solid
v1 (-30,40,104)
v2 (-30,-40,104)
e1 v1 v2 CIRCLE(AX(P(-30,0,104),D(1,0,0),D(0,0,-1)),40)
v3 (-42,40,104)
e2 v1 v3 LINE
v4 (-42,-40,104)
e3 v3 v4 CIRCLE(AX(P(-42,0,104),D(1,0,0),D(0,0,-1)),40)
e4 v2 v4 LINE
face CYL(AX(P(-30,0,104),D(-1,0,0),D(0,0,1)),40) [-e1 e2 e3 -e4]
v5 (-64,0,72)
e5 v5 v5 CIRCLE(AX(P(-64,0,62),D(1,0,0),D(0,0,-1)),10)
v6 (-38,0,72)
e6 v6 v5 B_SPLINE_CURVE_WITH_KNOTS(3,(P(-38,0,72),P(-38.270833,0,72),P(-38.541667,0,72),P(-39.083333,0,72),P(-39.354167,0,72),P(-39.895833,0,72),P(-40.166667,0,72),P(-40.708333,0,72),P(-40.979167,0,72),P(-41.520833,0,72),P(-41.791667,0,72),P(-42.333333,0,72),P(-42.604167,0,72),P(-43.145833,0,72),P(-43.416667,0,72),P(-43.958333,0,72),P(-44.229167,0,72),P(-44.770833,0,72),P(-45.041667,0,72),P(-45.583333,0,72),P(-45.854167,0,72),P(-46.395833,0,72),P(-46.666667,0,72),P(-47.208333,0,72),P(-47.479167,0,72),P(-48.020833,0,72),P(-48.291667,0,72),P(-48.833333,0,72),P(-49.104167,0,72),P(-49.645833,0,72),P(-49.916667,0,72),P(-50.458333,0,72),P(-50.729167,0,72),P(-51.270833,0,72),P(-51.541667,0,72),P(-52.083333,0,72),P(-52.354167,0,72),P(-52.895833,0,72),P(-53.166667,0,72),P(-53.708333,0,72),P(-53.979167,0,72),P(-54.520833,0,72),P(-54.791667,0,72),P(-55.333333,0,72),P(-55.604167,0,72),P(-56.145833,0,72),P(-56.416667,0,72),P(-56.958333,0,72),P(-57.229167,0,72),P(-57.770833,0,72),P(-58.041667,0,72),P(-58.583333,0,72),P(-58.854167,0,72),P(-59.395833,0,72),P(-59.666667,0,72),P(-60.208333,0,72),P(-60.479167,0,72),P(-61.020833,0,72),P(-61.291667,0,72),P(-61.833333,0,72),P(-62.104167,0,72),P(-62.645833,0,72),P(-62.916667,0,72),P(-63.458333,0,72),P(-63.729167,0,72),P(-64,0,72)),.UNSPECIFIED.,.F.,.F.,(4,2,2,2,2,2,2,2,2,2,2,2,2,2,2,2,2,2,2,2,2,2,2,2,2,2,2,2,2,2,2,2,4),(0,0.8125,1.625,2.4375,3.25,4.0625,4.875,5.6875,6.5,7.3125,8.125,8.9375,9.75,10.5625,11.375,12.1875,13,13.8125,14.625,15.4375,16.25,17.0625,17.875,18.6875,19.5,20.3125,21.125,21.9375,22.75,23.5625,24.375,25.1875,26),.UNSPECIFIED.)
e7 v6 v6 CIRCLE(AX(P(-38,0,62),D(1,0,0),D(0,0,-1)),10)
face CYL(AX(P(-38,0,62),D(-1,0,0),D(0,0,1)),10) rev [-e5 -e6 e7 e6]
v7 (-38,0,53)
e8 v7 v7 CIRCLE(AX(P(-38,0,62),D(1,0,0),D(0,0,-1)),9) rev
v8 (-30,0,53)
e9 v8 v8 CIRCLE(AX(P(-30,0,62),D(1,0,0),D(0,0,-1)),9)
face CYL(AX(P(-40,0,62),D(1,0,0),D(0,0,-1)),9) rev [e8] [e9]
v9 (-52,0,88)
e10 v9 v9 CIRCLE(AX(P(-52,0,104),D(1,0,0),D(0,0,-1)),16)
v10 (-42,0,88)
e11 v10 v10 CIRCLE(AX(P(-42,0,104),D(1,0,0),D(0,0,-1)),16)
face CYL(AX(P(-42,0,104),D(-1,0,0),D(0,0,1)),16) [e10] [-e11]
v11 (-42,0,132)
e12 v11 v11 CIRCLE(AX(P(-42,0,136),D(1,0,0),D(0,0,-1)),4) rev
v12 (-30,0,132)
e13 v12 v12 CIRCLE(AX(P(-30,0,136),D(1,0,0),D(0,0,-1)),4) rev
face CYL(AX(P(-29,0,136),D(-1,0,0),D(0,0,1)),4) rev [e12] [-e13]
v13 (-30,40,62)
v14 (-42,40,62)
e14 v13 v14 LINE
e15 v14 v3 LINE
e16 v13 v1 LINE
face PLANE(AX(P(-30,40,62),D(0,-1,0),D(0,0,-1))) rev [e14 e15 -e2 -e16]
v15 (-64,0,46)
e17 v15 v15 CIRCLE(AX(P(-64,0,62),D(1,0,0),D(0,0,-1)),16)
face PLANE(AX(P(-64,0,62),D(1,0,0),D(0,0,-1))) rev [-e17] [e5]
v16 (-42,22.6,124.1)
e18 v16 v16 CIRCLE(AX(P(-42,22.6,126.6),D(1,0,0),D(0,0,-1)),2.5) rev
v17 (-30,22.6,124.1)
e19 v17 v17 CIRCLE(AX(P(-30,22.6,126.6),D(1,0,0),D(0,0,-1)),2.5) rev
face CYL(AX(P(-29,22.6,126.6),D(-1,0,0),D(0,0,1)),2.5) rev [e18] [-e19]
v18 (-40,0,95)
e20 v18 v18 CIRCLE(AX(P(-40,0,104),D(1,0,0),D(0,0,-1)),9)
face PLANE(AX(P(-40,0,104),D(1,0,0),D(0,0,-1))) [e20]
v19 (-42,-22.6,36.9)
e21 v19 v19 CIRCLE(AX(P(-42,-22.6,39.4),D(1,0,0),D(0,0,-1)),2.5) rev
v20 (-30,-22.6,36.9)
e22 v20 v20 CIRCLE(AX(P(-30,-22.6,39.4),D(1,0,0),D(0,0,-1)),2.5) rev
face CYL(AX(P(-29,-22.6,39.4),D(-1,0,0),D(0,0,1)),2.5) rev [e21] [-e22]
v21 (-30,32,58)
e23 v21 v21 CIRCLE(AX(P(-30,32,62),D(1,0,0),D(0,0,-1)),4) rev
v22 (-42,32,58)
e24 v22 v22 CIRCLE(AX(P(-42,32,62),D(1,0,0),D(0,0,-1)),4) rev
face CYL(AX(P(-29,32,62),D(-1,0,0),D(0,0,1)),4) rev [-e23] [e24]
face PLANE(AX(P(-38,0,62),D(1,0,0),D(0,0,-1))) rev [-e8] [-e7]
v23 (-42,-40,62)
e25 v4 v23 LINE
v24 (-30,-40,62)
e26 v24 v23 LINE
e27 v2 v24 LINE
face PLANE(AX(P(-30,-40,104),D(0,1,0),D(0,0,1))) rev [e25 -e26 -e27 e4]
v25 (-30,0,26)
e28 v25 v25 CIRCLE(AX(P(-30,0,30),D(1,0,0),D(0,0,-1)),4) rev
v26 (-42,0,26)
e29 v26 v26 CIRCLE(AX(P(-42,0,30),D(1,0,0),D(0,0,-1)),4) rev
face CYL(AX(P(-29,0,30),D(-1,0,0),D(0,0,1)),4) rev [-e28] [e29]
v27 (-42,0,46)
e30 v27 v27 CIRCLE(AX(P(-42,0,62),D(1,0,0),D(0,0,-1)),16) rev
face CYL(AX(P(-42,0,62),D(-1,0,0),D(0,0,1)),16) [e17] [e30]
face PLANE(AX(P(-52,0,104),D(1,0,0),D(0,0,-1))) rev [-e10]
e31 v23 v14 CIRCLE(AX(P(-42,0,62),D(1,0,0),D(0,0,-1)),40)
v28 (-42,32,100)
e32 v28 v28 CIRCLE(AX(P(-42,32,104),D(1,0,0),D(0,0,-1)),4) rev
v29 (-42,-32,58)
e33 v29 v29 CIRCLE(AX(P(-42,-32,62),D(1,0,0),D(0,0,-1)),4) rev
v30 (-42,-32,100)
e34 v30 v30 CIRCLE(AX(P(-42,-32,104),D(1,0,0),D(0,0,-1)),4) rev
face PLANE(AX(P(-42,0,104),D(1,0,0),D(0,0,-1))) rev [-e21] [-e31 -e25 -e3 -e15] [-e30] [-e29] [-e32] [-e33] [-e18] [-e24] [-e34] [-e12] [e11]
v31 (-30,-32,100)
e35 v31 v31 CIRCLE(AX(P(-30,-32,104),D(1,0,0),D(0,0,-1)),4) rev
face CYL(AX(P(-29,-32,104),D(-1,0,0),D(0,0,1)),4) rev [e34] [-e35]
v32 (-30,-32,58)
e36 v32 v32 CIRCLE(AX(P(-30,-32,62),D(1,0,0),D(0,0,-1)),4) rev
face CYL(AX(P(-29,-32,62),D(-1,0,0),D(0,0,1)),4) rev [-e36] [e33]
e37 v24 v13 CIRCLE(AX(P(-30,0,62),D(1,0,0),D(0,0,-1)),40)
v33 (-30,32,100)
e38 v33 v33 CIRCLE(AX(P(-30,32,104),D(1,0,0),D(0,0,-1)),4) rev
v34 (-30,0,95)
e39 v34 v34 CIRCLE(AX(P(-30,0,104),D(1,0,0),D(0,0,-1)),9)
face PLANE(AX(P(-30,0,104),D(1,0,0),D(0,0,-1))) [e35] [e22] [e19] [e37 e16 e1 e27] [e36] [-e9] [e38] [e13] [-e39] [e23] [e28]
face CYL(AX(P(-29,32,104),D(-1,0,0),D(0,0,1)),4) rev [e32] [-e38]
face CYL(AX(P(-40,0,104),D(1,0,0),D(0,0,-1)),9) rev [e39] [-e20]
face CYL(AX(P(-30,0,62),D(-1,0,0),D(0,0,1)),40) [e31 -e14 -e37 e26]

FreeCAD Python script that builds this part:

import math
import FreeCAD as App
import Part
import Sketcher
from FreeCAD import Vector
Q = App.Units.Quantity

doc = App.newDocument("Part")
body = doc.addObject("PartDesign::Body", "Body")

# Sketch on YZ plane
sketch1 = body.newObject("Sketcher::SketchObject", "Sketch")
sketch1.AttachmentSupport = (doc.getObject("YZ_Plane"), [""])
sketch1.MapMode = "FlatFace"
sketch1.AttachmentOffset = App.Placement(Vector(0, 0, -42), App.Rotation())
sketch1.addGeometry(Part.LineSegment(Vector(-40, 104, 0), Vector(-40, 62, 0)), False)
sketch1.addGeometry(Part.ArcOfCircle(Part.Circle(Vector(0, 62, 0), Vector(0, 0, 1), 40), math.radians(180), math.radians(360)), False)
sketch1.addGeometry(Part.LineSegment(Vector(40, 62, 0), Vector(40, 104, 0)), False)
sketch1.addGeometry(Part.ArcOfCircle(Part.Circle(Vector(0, 104, 0), Vector(0, 0, 1), 40), math.radians(0), math.radians(180)), False)
sketch1.addConstraint(Sketcher.Constraint("Tangent", 0, 2, 1, 1))
sketch1.addConstraint(Sketcher.Constraint("Tangent", 1, 2, 2, 1))
sketch1.addConstraint(Sketcher.Constraint("Tangent", 2, 2, 3, 1))
sketch1.addConstraint(Sketcher.Constraint("Tangent", 3, 2, 0, 1))
sketch1.addConstraint(Sketcher.Constraint("Vertical", 0))
sketch1.addConstraint(Sketcher.Constraint("Vertical", 2))
sketch1.addConstraint(Sketcher.Constraint("PointOnObject", 1, 3, -2))
sketch1.addConstraint(Sketcher.Constraint("Radius", 1, Q("40 mm")))
sketch1.addConstraint(Sketcher.Constraint("DistanceY", 0, 2, 0, 1, Q("42 mm")))
sketch1.addConstraint(Sketcher.Constraint("DistanceY", -1, 1, 1, 3, Q("62 mm")))
pad1 = body.newObject("PartDesign::Pad", "Pad")
pad1.Profile = sketch1
pad1.Length = 12

# Sketch on YZ plane
sketch2 = body.newObject("Sketcher::SketchObject", "Sketch001")
sketch2.AttachmentSupport = (doc.getObject("YZ_Plane"), [""])
sketch2.MapMode = "FlatFace"
sketch2.AttachmentOffset = App.Placement(Vector(0, 0, -52), App.Rotation())
sketch2.addGeometry(Part.Circle(Vector(0, 104, 0), Vector(0, 0, 1), 16), False)
sketch2.addConstraint(Sketcher.Constraint("PointOnObject", 0, 3, -2))
sketch2.addConstraint(Sketcher.Constraint("Diameter", 0, Q("32 mm")))
sketch2.addConstraint(Sketcher.Constraint("DistanceY", -1, 1, 0, 3, Q("104 mm")))
pad2 = body.newObject("PartDesign::Pad", "Pad001")
pad2.Profile = sketch2
pad2.Length = 10

# Sketch on YZ plane
sketch3 = body.newObject("Sketcher::SketchObject", "Sketch002")
sketch3.AttachmentSupport = (doc.getObject("YZ_Plane"), [""])
sketch3.MapMode = "FlatFace"
sketch3.AttachmentOffset = App.Placement(Vector(0, 0, -64), App.Rotation())
sketch3.addGeometry(Part.Circle(Vector(0, 62, 0), Vector(0, 0, 1), 16), False)
sketch3.addConstraint(Sketcher.Constraint("PointOnObject", 0, 3, -2))
sketch3.addConstraint(Sketcher.Constraint("Diameter", 0, Q("32 mm")))
sketch3.addConstraint(Sketcher.Constraint("DistanceY", -1, 1, 0, 3, Q("62 mm")))
pad3 = body.newObject("PartDesign::Pad", "Pad002")
pad3.Profile = sketch3
pad3.Length = 22

# Sketch on YZ plane
sketch4 = body.newObject("Sketcher::SketchObject", "Sketch003")
sketch4.AttachmentSupport = (doc.getObject("YZ_Plane"), [""])
sketch4.MapMode = "FlatFace"
sketch4.AttachmentOffset = App.Placement(Vector(0, 0, -30), App.Rotation())
sketch4.addGeometry(Part.Circle(Vector(0, 104, 0), Vector(0, 0, 1), 9), False)
sketch4.addConstraint(Sketcher.Constraint("PointOnObject", 0, 3, -2))
sketch4.addConstraint(Sketcher.Constraint("Diameter", 0, Q("18 mm")))
sketch4.addConstraint(Sketcher.Constraint("DistanceY", -1, 1, 0, 3, Q("104 mm")))
pocket1 = body.newObject("PartDesign::Pocket", "Pocket")
pocket1.Profile = sketch4
pocket1.Length = 10

# Sketch on YZ plane
sketch5 = body.newObject("Sketcher::SketchObject", "Sketch004")
sketch5.AttachmentSupport = (doc.getObject("YZ_Plane"), [""])
sketch5.MapMode = "FlatFace"
sketch5.AttachmentOffset = App.Placement(Vector(0, 0, -30), App.Rotation())
sketch5.addGeometry(Part.Circle(Vector(0, 62, 0), Vector(0, 0, 1), 9), False)
sketch5.addConstraint(Sketcher.Constraint("PointOnObject", 0, 3, -2))
sketch5.addConstraint(Sketcher.Constraint("Diameter", 0, Q("18 mm")))
sketch5.addConstraint(Sketcher.Constraint("DistanceY", -1, 1, 0, 3, Q("62 mm")))
pocket2 = body.newObject("PartDesign::Pocket", "Pocket001")
pocket2.Profile = sketch5
pocket2.Length = 10

# Sketch on YZ plane
sketch6 = body.newObject("Sketcher::SketchObject", "Sketch005")
sketch6.AttachmentSupport = (doc.getObject("YZ_Plane"), [""])
sketch6.MapMode = "FlatFace"
sketch6.AttachmentOffset = App.Placement(Vector(0, 0, -64), App.Rotation())
sketch6.addGeometry(Part.Circle(Vector(0, 62, 0), Vector(0, 0, 1), 10), False)
sketch6.addConstraint(Sketcher.Constraint("PointOnObject", 0, 3, -2))
sketch6.addConstraint(Sketcher.Constraint("Diameter", 0, Q("20 mm")))
sketch6.addConstraint(Sketcher.Constraint("DistanceY", -1, 1, 0, 3, Q("62 mm")))
pocket3 = body.newObject("PartDesign::Pocket", "Pocket002")
pocket3.Profile = sketch6
pocket3.Length = 26
pocket3.Reversed = True

# Sketch on YZ plane
sketch7 = body.newObject("Sketcher::SketchObject", "Sketch006")
sketch7.AttachmentSupport = (doc.getObject("YZ_Plane"), [""])
sketch7.MapMode = "FlatFace"
sketch7.AttachmentOffset = App.Placement(Vector(0, 0, -43), App.Rotation())
sketch7.addGeometry(Part.Circle(Vector(32, 104, 0), Vector(0, 0, 1), 4), False)
sketch7.addConstraint(Sketcher.Constraint("Diameter", 0, Q("8 mm")))
sketch7.addConstraint(Sketcher.Constraint("DistanceX", -1, 1, 0, 3, Q("32 mm")))
sketch7.addConstraint(Sketcher.Constraint("DistanceY", -1, 1, 0, 3, Q("104 mm")))
pocket4 = body.newObject("PartDesign::Pocket", "Pocket003")
pocket4.Profile = sketch7
pocket4.Length = 14
pocket4.Reversed = True

# Sketch on YZ plane
sketch8 = body.newObject("Sketcher::SketchObject", "Sketch007")
sketch8.AttachmentSupport = (doc.getObject("YZ_Plane"), [""])
sketch8.MapMode = "FlatFace"
sketch8.AttachmentOffset = App.Placement(Vector(0, 0, -43), App.Rotation())
sketch8.addGeometry(Part.Circle(Vector(-32, 104, 0), Vector(0, 0, 1), 4), False)
sketch8.addConstraint(Sketcher.Constraint("Diameter", 0, Q("8 mm")))
sketch8.addConstraint(Sketcher.Constraint("DistanceX", 0, 3, -1, 1, Q("32 mm")))
sketch8.addConstraint(Sketcher.Constraint("DistanceY", -1, 1, 0, 3, Q("104 mm")))
pocket5 = body.newObject("PartDesign::Pocket", "Pocket004")
pocket5.Profile = sketch8
pocket5.Length = 14
pocket5.Reversed = True

# Sketch on YZ plane
sketch9 = body.newObject("Sketcher::SketchObject", "Sketch008")
sketch9.AttachmentSupport = (doc.getObject("YZ_Plane"), [""])
sketch9.MapMode = "FlatFace"
sketch9.AttachmentOffset = App.Placement(Vector(0, 0, -43), App.Rotation())
sketch9.addGeometry(Part.Circle(Vector(32, 62, 0), Vector(0, 0, 1), 4), False)
sketch9.addConstraint(Sketcher.Constraint("Diameter", 0, Q("8 mm")))
sketch9.addConstraint(Sketcher.Constraint("DistanceX", -1, 1, 0, 3, Q("32 mm")))
sketch9.addConstraint(Sketcher.Constraint("DistanceY", -1, 1, 0, 3, Q("62 mm")))
pocket6 = body.newObject("PartDesign::Pocket", "Pocket005")
pocket6.Profile = sketch9
pocket6.Length = 14
pocket6.Reversed = True

# Sketch on YZ plane
sketch10 = body.newObject("Sketcher::SketchObject", "Sketch009")
sketch10.AttachmentSupport = (doc.getObject("YZ_Plane"), [""])
sketch10.MapMode = "FlatFace"
sketch10.AttachmentOffset = App.Placement(Vector(0, 0, -43), App.Rotation())
sketch10.addGeometry(Part.Circle(Vector(-32, 62, 0), Vector(0, 0, 1), 4), False)
sketch10.addConstraint(Sketcher.Constraint("Diameter", 0, Q("8 mm")))
sketch10.addConstraint(Sketcher.Constraint("DistanceX", 0, 3, -1, 1, Q("32 mm")))
sketch10.addConstraint(Sketcher.Constraint("DistanceY", -1, 1, 0, 3, Q("62 mm")))
pocket7 = body.newObject("PartDesign::Pocket", "Pocket006")
pocket7.Profile = sketch10
pocket7.Length = 14
pocket7.Reversed = True

# Sketch on YZ plane
sketch11 = body.newObject("Sketcher::SketchObject", "Sketch010")
sketch11.AttachmentSupport = (doc.getObject("YZ_Plane"), [""])
sketch11.MapMode = "FlatFace"
sketch11.AttachmentOffset = App.Placement(Vector(0, 0, -43), App.Rotation())
sketch11.addGeometry(Part.Circle(Vector(0, 136, 0), Vector(0, 0, 1), 4), False)
sketch11.addConstraint(Sketcher.Constraint("PointOnObject", 0, 3, -2))
sketch11.addConstraint(Sketcher.Constraint("Diameter", 0, Q("8 mm")))
sketch11.addConstraint(Sketcher.Constraint("DistanceY", -1, 1, 0, 3, Q("136 mm")))
pocket8 = body.newObject("PartDesign::Pocket", "Pocket007")
pocket8.Profile = sketch11
pocket8.Length = 14
pocket8.Reversed = True

# Sketch on YZ plane
sketch12 = body.newObject("Sketcher::SketchObject", "Sketch011")
sketch12.AttachmentSupport = (doc.getObject("YZ_Plane"), [""])
sketch12.MapMode = "FlatFace"
sketch12.AttachmentOffset = App.Placement(Vector(0, 0, -43), App.Rotation())
sketch12.addGeometry(Part.Circle(Vector(0, 30, 0), Vector(0, 0, 1), 4), False)
sketch12.addConstraint(Sketcher.Constraint("PointOnObject", 0, 3, -2))
sketch12.addConstraint(Sketcher.Constraint("Diameter", 0, Q("8 mm")))
sketch12.addConstraint(Sketcher.Constraint("DistanceY", -1, 1, 0, 3, Q("30 mm")))
pocket9 = body.newObject("PartDesign::Pocket", "Pocket008")
pocket9.Profile = sketch12
pocket9.Length = 14
pocket9.Reversed = True

# Sketch on YZ plane
sketch13 = body.newObject("Sketcher::SketchObject", "Sketch012")
sketch13.AttachmentSupport = (doc.getObject("YZ_Plane"), [""])
sketch13.MapMode = "FlatFace"
sketch13.AttachmentOffset = App.Placement(Vector(0, 0, -43), App.Rotation())
sketch13.addGeometry(Part.Circle(Vector(22.6, 126.6, 0), Vector(0, 0, 1), 2.5), False)
sketch13.addConstraint(Sketcher.Constraint("Diameter", 0, Q("5 mm")))
sketch13.addConstraint(Sketcher.Constraint("DistanceX", -1, 1, 0, 3, Q("22.6 mm")))
sketch13.addConstraint(Sketcher.Constraint("DistanceY", -1, 1, 0, 3, Q("126.6 mm")))
pocket10 = body.newObject("PartDesign::Pocket", "Pocket009")
pocket10.Profile = sketch13
pocket10.Length = 14
pocket10.Reversed = True

# Sketch on YZ plane
sketch14 = body.newObject("Sketcher::SketchObject", "Sketch013")
sketch14.AttachmentSupport = (doc.getObject("YZ_Plane"), [""])
sketch14.MapMode = "FlatFace"
sketch14.AttachmentOffset = App.Placement(Vector(0, 0, -43), App.Rotation())
sketch14.addGeometry(Part.Circle(Vector(-22.6, 39.4, 0), Vector(0, 0, 1), 2.5), False)
sketch14.addConstraint(Sketcher.Constraint("Diameter", 0, Q("5 mm")))
sketch14.addConstraint(Sketcher.Constraint("DistanceX", 0, 3, -1, 1, Q("22.6 mm")))
sketch14.addConstraint(Sketcher.Constraint("DistanceY", -1, 1, 0, 3, Q("39.4 mm")))
pocket11 = body.newObject("PartDesign::Pocket", "Pocket010")
pocket11.Profile = sketch14
pocket11.Length = 14
pocket11.Reversed = True

doc.recompute()
